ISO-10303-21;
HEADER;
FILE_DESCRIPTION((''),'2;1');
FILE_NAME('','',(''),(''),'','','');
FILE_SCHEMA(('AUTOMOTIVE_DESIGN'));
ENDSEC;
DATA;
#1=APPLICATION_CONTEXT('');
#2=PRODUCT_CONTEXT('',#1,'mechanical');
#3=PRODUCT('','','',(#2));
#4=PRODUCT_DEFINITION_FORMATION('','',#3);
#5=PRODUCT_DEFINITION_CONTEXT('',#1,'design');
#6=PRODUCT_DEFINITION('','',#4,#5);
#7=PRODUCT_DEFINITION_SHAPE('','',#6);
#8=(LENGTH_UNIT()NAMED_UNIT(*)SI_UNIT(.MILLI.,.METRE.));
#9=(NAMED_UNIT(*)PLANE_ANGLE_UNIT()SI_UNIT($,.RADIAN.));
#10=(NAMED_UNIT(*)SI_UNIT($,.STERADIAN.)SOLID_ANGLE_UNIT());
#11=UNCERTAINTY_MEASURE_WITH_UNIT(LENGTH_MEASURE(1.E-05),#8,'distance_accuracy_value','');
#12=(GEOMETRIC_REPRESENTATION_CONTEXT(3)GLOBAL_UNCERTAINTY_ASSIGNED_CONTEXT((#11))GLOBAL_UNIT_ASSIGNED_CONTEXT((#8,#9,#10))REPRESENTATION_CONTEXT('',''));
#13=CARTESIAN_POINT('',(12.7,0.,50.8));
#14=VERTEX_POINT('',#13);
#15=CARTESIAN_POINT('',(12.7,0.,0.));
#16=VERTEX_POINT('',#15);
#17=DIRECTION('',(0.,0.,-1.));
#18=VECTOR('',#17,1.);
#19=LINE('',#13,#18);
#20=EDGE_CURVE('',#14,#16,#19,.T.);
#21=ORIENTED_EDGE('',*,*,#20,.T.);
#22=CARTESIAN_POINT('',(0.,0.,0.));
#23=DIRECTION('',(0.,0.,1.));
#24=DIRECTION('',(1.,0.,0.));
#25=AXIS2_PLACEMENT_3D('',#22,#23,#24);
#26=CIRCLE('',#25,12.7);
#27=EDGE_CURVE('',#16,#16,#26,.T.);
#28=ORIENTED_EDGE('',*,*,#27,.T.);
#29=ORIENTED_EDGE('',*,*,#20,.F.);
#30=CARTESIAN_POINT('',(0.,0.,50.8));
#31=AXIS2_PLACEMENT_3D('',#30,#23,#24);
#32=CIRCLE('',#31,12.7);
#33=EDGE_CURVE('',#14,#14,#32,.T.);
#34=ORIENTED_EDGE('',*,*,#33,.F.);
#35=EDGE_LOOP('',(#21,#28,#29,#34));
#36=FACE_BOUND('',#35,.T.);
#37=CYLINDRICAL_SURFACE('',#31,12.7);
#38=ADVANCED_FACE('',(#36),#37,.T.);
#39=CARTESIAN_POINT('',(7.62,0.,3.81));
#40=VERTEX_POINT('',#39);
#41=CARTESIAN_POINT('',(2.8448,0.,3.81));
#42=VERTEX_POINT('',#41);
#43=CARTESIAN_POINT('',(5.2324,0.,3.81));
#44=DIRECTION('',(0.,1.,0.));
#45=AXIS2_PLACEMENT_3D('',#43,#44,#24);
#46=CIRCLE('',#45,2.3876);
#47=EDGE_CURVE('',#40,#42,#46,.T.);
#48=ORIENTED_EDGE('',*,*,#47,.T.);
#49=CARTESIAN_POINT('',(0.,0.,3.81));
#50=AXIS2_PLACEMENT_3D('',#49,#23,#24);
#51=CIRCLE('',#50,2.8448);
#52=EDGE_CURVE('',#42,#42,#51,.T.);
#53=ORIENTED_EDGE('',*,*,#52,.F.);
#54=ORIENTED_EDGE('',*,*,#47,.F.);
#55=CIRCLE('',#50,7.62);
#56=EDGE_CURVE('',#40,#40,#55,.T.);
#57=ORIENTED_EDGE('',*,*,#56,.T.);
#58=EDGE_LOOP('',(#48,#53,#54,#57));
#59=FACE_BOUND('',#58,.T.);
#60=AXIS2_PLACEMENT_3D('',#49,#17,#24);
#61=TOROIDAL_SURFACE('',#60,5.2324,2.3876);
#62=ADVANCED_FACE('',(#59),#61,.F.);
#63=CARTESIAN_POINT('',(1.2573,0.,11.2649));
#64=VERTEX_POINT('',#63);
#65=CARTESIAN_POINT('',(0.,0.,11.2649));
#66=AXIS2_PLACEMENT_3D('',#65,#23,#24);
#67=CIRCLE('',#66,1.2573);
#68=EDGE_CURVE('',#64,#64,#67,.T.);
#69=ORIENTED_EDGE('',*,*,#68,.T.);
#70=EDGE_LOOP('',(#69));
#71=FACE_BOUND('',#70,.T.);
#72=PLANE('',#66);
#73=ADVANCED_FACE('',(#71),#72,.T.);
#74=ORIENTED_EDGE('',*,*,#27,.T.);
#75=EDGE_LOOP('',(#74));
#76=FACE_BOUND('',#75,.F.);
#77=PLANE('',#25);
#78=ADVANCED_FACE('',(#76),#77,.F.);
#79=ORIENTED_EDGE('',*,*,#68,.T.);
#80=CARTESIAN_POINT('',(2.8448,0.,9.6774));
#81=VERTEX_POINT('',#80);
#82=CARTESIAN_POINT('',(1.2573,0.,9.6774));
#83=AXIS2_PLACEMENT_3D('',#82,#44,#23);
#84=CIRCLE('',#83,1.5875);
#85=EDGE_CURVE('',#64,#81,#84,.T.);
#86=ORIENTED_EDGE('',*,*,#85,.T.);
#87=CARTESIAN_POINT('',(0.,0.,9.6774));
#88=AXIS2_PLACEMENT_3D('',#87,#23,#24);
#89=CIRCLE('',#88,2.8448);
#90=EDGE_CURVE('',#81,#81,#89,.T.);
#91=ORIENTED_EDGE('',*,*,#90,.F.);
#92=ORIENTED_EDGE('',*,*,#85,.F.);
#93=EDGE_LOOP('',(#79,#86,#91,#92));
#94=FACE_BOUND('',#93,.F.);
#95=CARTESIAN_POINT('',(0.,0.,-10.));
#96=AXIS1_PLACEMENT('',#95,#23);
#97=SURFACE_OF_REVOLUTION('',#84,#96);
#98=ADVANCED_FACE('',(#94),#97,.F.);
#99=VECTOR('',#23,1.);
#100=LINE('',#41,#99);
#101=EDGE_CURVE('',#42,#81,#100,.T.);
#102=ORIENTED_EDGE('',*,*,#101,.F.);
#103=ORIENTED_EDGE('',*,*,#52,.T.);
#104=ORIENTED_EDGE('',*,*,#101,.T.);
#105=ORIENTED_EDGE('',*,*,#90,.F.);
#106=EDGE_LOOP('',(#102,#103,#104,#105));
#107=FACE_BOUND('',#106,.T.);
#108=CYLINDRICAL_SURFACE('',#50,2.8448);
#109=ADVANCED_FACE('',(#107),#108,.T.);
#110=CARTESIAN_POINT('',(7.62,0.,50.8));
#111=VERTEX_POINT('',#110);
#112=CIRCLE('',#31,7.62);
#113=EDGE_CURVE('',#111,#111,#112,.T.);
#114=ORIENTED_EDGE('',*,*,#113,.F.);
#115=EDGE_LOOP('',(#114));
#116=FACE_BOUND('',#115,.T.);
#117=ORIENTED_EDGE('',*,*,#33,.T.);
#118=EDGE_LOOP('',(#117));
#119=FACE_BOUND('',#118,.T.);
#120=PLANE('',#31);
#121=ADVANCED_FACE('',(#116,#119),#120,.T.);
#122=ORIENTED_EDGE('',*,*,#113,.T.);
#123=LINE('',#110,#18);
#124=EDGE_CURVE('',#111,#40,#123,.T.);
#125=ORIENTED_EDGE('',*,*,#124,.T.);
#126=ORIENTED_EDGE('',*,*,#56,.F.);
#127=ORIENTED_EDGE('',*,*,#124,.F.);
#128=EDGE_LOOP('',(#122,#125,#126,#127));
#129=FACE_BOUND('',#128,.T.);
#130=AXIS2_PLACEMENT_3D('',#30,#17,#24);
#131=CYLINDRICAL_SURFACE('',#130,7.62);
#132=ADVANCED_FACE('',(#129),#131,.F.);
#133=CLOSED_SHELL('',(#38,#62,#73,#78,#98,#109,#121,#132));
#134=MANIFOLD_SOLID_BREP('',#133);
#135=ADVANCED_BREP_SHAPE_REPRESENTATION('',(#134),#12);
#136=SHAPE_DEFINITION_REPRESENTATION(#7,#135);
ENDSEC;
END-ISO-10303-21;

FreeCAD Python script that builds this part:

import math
import FreeCAD as App
import Part
import Sketcher
Q = App.Units.Quantity

doc = App.newDocument("Part")
body = doc.addObject("PartDesign::Body", "Body")

# Sketch on XY plane
sketch1 = body.newObject("Sketcher::SketchObject", "Sketch")
sketch1.AttachmentSupport = (doc.getObject("XY_Plane"), [""])
sketch1.MapMode = "FlatFace"
sketch1.AttachmentOffset = App.Placement(App.Vector(0, 0, 2 * 25.4), App.Rotation())
sketch1.addGeometry(Part.Circle(App.Vector(0, 0, 0), App.Vector(0, 0, 1), 13), False)
sketch1.addConstraint([
    Sketcher.Constraint("Coincident", 0, 3, -1, 1),
    Sketcher.Constraint("Diameter", 0, Q("1 in")),
])
pad1 = body.newObject("PartDesign::Pad", "Pad")
pad1.Profile = sketch1
pad1.Length = Q("2 in")
pad1.Reversed = True

# Sketch on XZ plane
sketch2 = body.newObject("Sketcher::SketchObject", "Sketch001")
sketch2.AttachmentSupport = (doc.getObject("XZ_Plane"), [""])
sketch2.MapMode = "FlatFace"
sketch2.addGeometry([
    Part.LineSegment(App.Vector(0, 11.3, 0), App.Vector(0, 50.8, 0)),  # 0
    Part.LineSegment(App.Vector(0, 50.8, 0), App.Vector(7.6, 50.8, 0)),  # 1
    Part.LineSegment(App.Vector(7.6, 50.8, 0), App.Vector(7.6, 3.8, 0)),  # 2
    Part.ArcOfCircle(Part.Circle(App.Vector(5.2, 3.8, 0), App.Vector(0, 0, 1), 2.4), math.radians(180), math.radians(360)),  # 3
    Part.LineSegment(App.Vector(2.8, 3.8, 0), App.Vector(2.8, 9.7, 0)),  # 4
    Part.ArcOfCircle(Part.Circle(App.Vector(1.3, 9.7, 0), App.Vector(0, 0, 1), 1.6), math.radians(0), math.radians(90)),  # 5
    Part.LineSegment(App.Vector(1.3, 11.3, 0), App.Vector(0, 11.3, 0)),  # 6
], False)
sketch2.addConstraint([
    Sketcher.Constraint("Coincident", 0, 2, 1, 1),
    Sketcher.Constraint("Coincident", 1, 2, 2, 1),
    Sketcher.Constraint("Tangent", 2, 2, 3, 2),
    Sketcher.Constraint("Tangent", 3, 1, 4, 1),
    Sketcher.Constraint("Tangent", 4, 2, 5, 1),
    Sketcher.Constraint("Tangent", 5, 2, 6, 1),
    Sketcher.Constraint("Coincident", 6, 2, 0, 1),
    Sketcher.Constraint("Vertical", 0),
    Sketcher.Constraint("Horizontal", 1),
    Sketcher.Constraint("Vertical", 2),
    Sketcher.Constraint("Vertical", 4),
    Sketcher.Constraint("Horizontal", 6),
    Sketcher.Constraint("PointOnObject", 0, 2, -2),
    Sketcher.Constraint("DistanceX", 1, 1, 1, 2, Q("0.3 in")),
    Sketcher.Constraint("DistanceY", -1, 1, 0, 2, Q("2 in")),
    Sketcher.Constraint("Radius", 3, Q("0.094 in")),
    Sketcher.Constraint("Radius", 5, Q("0.0625 in")),
    Sketcher.Constraint("DistanceY", 2, 2, 2, 1, Q("1.85 in")),
    Sketcher.Constraint("DistanceY", 4, 1, 4, 2, Q("0.231 in")),
])
groove = body.newObject("PartDesign::Groove", "Groove")
groove.Profile = sketch2
groove.ReferenceAxis = (sketch2, ["V_Axis"])
groove.Angle = 360

doc.recompute()
